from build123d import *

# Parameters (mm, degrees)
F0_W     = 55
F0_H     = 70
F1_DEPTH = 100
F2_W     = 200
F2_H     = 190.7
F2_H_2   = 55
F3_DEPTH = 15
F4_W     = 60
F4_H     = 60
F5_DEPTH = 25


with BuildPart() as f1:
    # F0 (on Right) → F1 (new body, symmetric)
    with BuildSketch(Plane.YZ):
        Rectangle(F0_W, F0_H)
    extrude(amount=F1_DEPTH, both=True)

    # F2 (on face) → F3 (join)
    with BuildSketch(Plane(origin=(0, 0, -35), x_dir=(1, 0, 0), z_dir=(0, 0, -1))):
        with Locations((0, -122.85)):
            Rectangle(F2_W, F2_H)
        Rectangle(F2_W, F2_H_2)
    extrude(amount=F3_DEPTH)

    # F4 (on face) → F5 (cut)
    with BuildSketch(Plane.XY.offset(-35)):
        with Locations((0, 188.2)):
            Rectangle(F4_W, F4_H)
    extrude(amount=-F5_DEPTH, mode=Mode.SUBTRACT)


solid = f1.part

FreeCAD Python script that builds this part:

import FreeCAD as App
import Part
import Sketcher
from FreeCAD import Vector
Q = App.Units.Quantity

doc = App.newDocument("Part")
body = doc.addObject("PartDesign::Body", "Body")

# Sketch on YZ plane
sketch1 = doc.addObject("Sketcher::SketchObject", "Sketch")
body.addObject(sketch1)
sketch1.AttachmentSupport = (doc.YZ_Plane, [""])
sketch1.MapMode = "FlatFace"
sketch1.addGeometry(Part.LineSegment(Vector(-28, 35, 0), Vector(-28, -35, 0)), False)
sketch1.addGeometry(Part.LineSegment(Vector(-28, -35, 0), Vector(28, -35, 0)), False)
sketch1.addGeometry(Part.LineSegment(Vector(28, -35, 0), Vector(28, 35, 0)), False)
sketch1.addGeometry(Part.LineSegment(Vector(28, 35, 0), Vector(-28, 35, 0)), False)
sketch1.addConstraint(Sketcher.Constraint("Coincident", 0, 2, 1, 1))
sketch1.addConstraint(Sketcher.Constraint("Coincident", 1, 2, 2, 1))
sketch1.addConstraint(Sketcher.Constraint("Coincident", 2, 2, 3, 1))
sketch1.addConstraint(Sketcher.Constraint("Coincident", 3, 2, 0, 1))
sketch1.addConstraint(Sketcher.Constraint("Vertical", 0))
sketch1.addConstraint(Sketcher.Constraint("Horizontal", 1))
sketch1.addConstraint(Sketcher.Constraint("Vertical", 2))
sketch1.addConstraint(Sketcher.Constraint("Horizontal", 3))
sketch1.addConstraint(Sketcher.Constraint("Symmetric", 0, 2, 2, 2, -1, 1))
sketch1.addConstraint(Sketcher.Constraint("DistanceX", 1, 1, 1, 2, Q("55 mm")))
sketch1.addConstraint(Sketcher.Constraint("DistanceY", 0, 2, 0, 1, Q("70 mm")))
pad1 = doc.addObject("PartDesign::Pad", "Pad")
body.addObject(pad1)
pad1.Profile = sketch1
pad1.Length = 200
pad1.Midplane = True

# Sketch on XY plane
sketch2 = doc.addObject("Sketcher::SketchObject", "Sketch001")
body.addObject(sketch2)
sketch2.AttachmentSupport = (doc.XY_Plane, [""])
sketch2.MapMode = "FlatFace"
sketch2.AttachmentOffset = App.Placement(Vector(0, 0, -35), App.Rotation())
sketch2.addGeometry(Part.LineSegment(Vector(-100, 218, 0), Vector(100, 218, 0)), False)
sketch2.addGeometry(Part.LineSegment(Vector(100, 218, 0), Vector(100, -28, 0)), False)
sketch2.addGeometry(Part.LineSegment(Vector(100, -28, 0), Vector(-100, -28, 0)), False)
sketch2.addGeometry(Part.LineSegment(Vector(-100, -28, 0), Vector(-100, 218, 0)), False)
sketch2.addConstraint(Sketcher.Constraint("Coincident", 0, 2, 1, 1))
sketch2.addConstraint(Sketcher.Constraint("Coincident", 1, 2, 2, 1))
sketch2.addConstraint(Sketcher.Constraint("Coincident", 2, 2, 3, 1))
sketch2.addConstraint(Sketcher.Constraint("Coincident", 3, 2, 0, 1))
sketch2.addConstraint(Sketcher.Constraint("Horizontal", 0))
sketch2.addConstraint(Sketcher.Constraint("Vertical", 1))
sketch2.addConstraint(Sketcher.Constraint("Horizontal", 2))
sketch2.addConstraint(Sketcher.Constraint("Vertical", 3))
sketch2.addConstraint(Sketcher.Constraint("DistanceX", 0, 1, 0, 2, Q("200 mm")))
sketch2.addConstraint(Sketcher.Constraint("DistanceY", 1, 2, 1, 1, Q("245.7 mm")))
sketch2.addConstraint(Sketcher.Constraint("DistanceX", -1, 1, 0, 2, Q("100 mm")))
sketch2.addConstraint(Sketcher.Constraint("DistanceY", -1, 1, 0, 2, Q("218.2 mm")))
pad2 = doc.addObject("PartDesign::Pad", "Pad001")
body.addObject(pad2)
pad2.Profile = sketch2
pad2.Length = 15
pad2.Reversed = True

# Sketch on XY plane
sketch3 = doc.addObject("Sketcher::SketchObject", "Sketch002")
body.addObject(sketch3)
sketch3.AttachmentSupport = (doc.XY_Plane, [""])
sketch3.MapMode = "FlatFace"
sketch3.AttachmentOffset = App.Placement(Vector(0, 0, -35), App.Rotation())
sketch3.addGeometry(Part.LineSegment(Vector(-30, 218, 0), Vector(-30, 158, 0)), False)
sketch3.addGeometry(Part.LineSegment(Vector(-30, 158, 0), Vector(30, 158, 0)), False)
sketch3.addGeometry(Part.LineSegment(Vector(30, 158, 0), Vector(30, 218, 0)), False)
sketch3.addGeometry(Part.LineSegment(Vector(30, 218, 0), Vector(-30, 218, 0)), False)
sketch3.addConstraint(Sketcher.Constraint("Coincident", 0, 2, 1, 1))
sketch3.addConstraint(Sketcher.Constraint("Coincident", 1, 2, 2, 1))
sketch3.addConstraint(Sketcher.Constraint("Coincident", 2, 2, 3, 1))
sketch3.addConstraint(Sketcher.Constraint("Coincident", 3, 2, 0, 1))
sketch3.addConstraint(Sketcher.Constraint("Vertical", 0))
sketch3.addConstraint(Sketcher.Constraint("Horizontal", 1))
sketch3.addConstraint(Sketcher.Constraint("Vertical", 2))
sketch3.addConstraint(Sketcher.Constraint("Horizontal", 3))
sketch3.addConstraint(Sketcher.Constraint("Equal", 3, 0))
sketch3.addConstraint(Sketcher.Constraint("DistanceX", 1, 1, 1, 2, Q("60 mm")))
sketch3.addConstraint(Sketcher.Constraint("DistanceX", 0, 2, -1, 1, Q("30 mm")))
sketch3.addConstraint(Sketcher.Constraint("DistanceY", -1, 1, 0, 2, Q("158.2 mm")))
pocket1 = doc.addObject("PartDesign::Pocket", "Pocket")
body.addObject(pocket1)
pocket1.Profile = sketch3
pocket1.Length = 25

doc.recompute()
